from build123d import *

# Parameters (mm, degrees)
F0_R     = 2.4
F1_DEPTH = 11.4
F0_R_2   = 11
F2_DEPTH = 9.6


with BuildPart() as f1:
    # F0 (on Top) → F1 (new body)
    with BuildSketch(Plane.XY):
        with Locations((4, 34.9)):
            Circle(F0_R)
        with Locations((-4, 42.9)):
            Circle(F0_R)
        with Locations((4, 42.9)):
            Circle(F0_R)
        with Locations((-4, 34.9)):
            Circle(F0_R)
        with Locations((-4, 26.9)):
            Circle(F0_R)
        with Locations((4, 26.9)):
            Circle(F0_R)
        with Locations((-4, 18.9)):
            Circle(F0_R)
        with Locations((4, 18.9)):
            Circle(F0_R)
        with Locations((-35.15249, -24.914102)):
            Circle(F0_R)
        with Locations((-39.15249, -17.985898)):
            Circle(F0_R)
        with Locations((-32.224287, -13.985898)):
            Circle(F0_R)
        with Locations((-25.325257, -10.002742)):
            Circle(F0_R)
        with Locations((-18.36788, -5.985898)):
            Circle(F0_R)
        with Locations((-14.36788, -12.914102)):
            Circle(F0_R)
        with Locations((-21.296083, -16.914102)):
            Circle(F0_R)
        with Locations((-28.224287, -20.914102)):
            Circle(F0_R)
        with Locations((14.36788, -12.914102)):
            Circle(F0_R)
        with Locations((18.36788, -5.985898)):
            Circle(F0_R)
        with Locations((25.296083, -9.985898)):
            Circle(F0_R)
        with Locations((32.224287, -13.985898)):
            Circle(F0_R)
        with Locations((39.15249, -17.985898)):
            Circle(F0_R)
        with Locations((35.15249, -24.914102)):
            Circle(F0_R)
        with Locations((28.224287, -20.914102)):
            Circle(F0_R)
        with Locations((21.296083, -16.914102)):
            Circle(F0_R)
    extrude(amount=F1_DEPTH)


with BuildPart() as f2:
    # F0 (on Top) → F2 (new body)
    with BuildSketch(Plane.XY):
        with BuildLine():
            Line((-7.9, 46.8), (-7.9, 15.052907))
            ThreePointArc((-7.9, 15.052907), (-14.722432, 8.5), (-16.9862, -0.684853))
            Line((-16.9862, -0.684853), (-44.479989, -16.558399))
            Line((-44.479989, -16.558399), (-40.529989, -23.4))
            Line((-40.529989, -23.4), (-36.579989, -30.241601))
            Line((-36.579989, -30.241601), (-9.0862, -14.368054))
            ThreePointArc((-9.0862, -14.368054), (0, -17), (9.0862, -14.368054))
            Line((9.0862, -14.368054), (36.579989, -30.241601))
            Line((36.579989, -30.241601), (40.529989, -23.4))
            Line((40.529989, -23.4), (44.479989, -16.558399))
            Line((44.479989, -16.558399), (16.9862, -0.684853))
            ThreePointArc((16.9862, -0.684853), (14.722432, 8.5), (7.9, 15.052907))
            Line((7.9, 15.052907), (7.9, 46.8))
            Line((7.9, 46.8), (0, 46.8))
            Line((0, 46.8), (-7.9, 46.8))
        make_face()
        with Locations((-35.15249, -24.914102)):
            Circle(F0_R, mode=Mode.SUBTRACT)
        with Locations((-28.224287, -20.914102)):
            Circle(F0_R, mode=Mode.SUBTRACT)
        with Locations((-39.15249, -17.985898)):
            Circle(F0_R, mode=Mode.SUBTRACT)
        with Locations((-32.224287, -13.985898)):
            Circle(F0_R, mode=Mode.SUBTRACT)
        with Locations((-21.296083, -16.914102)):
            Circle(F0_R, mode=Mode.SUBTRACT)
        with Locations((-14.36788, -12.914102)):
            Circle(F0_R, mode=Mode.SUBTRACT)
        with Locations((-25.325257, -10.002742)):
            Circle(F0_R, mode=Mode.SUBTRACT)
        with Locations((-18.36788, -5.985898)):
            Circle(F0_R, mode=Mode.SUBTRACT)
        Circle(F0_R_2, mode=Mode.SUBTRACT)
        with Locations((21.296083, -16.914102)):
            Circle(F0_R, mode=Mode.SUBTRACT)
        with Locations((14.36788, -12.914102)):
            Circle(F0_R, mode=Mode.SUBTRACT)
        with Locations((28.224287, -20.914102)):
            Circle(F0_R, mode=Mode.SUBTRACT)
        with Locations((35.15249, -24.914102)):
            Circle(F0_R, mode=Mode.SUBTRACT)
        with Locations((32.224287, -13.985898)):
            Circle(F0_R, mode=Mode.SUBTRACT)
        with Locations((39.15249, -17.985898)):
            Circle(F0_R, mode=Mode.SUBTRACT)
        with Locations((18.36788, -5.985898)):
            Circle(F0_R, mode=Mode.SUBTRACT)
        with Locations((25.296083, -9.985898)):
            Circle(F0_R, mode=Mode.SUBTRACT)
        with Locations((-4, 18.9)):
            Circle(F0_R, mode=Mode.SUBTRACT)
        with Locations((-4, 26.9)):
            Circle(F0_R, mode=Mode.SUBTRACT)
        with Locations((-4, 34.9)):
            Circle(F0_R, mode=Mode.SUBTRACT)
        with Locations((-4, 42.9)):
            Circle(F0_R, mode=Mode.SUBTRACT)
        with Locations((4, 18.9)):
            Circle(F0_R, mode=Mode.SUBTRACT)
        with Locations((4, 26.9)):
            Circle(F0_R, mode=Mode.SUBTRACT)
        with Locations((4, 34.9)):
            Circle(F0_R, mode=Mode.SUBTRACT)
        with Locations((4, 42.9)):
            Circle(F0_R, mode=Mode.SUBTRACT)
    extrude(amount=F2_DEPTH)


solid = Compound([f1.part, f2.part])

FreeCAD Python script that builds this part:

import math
import FreeCAD as App
import Part
import Sketcher
Q = App.Units.Quantity

doc = App.newDocument("Part")
body = doc.addObject("PartDesign::Body", "Body")
body.AllowCompound = True

# Sketch on XY plane
sketch1 = body.newObject("Sketcher::SketchObject", "Sketch")
sketch1.AttachmentSupport = (doc.getObject("XY_Plane"), [""])
sketch1.MapMode = "FlatFace"
sketch1.addGeometry(Part.Circle(App.Vector(4, 34.9, 0), App.Vector(0, 0, 1), 2.4), False)
sketch1.addGeometry(Part.Circle(App.Vector(-4, 42.9, 0), App.Vector(0, 0, 1), 2.4), False)
sketch1.addGeometry(Part.Circle(App.Vector(4, 42.9, 0), App.Vector(0, 0, 1), 2.4), False)
sketch1.addGeometry(Part.Circle(App.Vector(-4, 34.9, 0), App.Vector(0, 0, 1), 2.4), False)
sketch1.addGeometry(Part.Circle(App.Vector(-4, 26.9, 0), App.Vector(0, 0, 1), 2.4), False)
sketch1.addGeometry(Part.Circle(App.Vector(4, 26.9, 0), App.Vector(0, 0, 1), 2.4), False)
sketch1.addGeometry(Part.Circle(App.Vector(-4, 18.9, 0), App.Vector(0, 0, 1), 2.4), False)
sketch1.addGeometry(Part.Circle(App.Vector(4, 18.9, 0), App.Vector(0, 0, 1), 2.4), False)
sketch1.addGeometry(Part.Circle(App.Vector(-35.2, -24.9, 0), App.Vector(0, 0, 1), 2.4), False)
sketch1.addGeometry(Part.Circle(App.Vector(-39.2, -18, 0), App.Vector(0, 0, 1), 2.4), False)
sketch1.addGeometry(Part.Circle(App.Vector(-32.2, -14, 0), App.Vector(0, 0, 1), 2.4), False)
sketch1.addGeometry(Part.Circle(App.Vector(-25.3, -10, 0), App.Vector(0, 0, 1), 2.4), False)
sketch1.addGeometry(Part.Circle(App.Vector(-18.4, -6, 0), App.Vector(0, 0, 1), 2.4), False)
sketch1.addGeometry(Part.Circle(App.Vector(-14.4, -12.9, 0), App.Vector(0, 0, 1), 2.4), False)
sketch1.addGeometry(Part.Circle(App.Vector(-21.3, -16.9, 0), App.Vector(0, 0, 1), 2.4), False)
sketch1.addGeometry(Part.Circle(App.Vector(-28.2, -20.9, 0), App.Vector(0, 0, 1), 2.4), False)
sketch1.addGeometry(Part.Circle(App.Vector(14.4, -12.9, 0), App.Vector(0, 0, 1), 2.4), False)
sketch1.addGeometry(Part.Circle(App.Vector(18.4, -6, 0), App.Vector(0, 0, 1), 2.4), False)
sketch1.addGeometry(Part.Circle(App.Vector(25.3, -10, 0), App.Vector(0, 0, 1), 2.4), False)
sketch1.addGeometry(Part.Circle(App.Vector(32.2, -14, 0), App.Vector(0, 0, 1), 2.4), False)
sketch1.addGeometry(Part.Circle(App.Vector(39.2, -18, 0), App.Vector(0, 0, 1), 2.4), False)
sketch1.addGeometry(Part.Circle(App.Vector(35.2, -24.9, 0), App.Vector(0, 0, 1), 2.4), False)
sketch1.addGeometry(Part.Circle(App.Vector(28.2, -20.9, 0), App.Vector(0, 0, 1), 2.4), False)
sketch1.addGeometry(Part.Circle(App.Vector(21.3, -16.9, 0), App.Vector(0, 0, 1), 2.4), False)
sketch1.addConstraint(Sketcher.Constraint("Equal", 0, 1))
sketch1.addConstraint(Sketcher.Constraint("Equal", 1, 2))
sketch1.addConstraint(Sketcher.Constraint("Equal", 2, 3))
sketch1.addConstraint(Sketcher.Constraint("Equal", 3, 4))
sketch1.addConstraint(Sketcher.Constraint("Equal", 4, 5))
sketch1.addConstraint(Sketcher.Constraint("Equal", 5, 6))
sketch1.addConstraint(Sketcher.Constraint("Equal", 6, 7))
sketch1.addConstraint(Sketcher.Constraint("Equal", 7, 8))
sketch1.addConstraint(Sketcher.Constraint("Equal", 8, 9))
sketch1.addConstraint(Sketcher.Constraint("Equal", 9, 10))
sketch1.addConstraint(Sketcher.Constraint("Equal", 10, 11))
sketch1.addConstraint(Sketcher.Constraint("Equal", 11, 12))
sketch1.addConstraint(Sketcher.Constraint("Equal", 12, 13))
sketch1.addConstraint(Sketcher.Constraint("Equal", 13, 14))
sketch1.addConstraint(Sketcher.Constraint("Equal", 14, 15))
sketch1.addConstraint(Sketcher.Constraint("Equal", 15, 16))
sketch1.addConstraint(Sketcher.Constraint("Equal", 16, 17))
sketch1.addConstraint(Sketcher.Constraint("Equal", 17, 18))
sketch1.addConstraint(Sketcher.Constraint("Equal", 18, 19))
sketch1.addConstraint(Sketcher.Constraint("Equal", 19, 20))
sketch1.addConstraint(Sketcher.Constraint("Equal", 20, 21))
sketch1.addConstraint(Sketcher.Constraint("Equal", 21, 22))
sketch1.addConstraint(Sketcher.Constraint("Equal", 22, 23))
sketch1.addConstraint(Sketcher.Constraint("Symmetric", 1, 3, 2, 3, -2))
sketch1.addConstraint(Sketcher.Constraint("Symmetric", 0, 3, 3, 3, -2))
sketch1.addConstraint(Sketcher.Constraint("Symmetric", 4, 3, 5, 3, -2))
sketch1.addConstraint(Sketcher.Constraint("Symmetric", 6, 3, 7, 3, -2))
sketch1.addConstraint(Sketcher.Constraint("Symmetric", 13, 3, 16, 3, -2))
sketch1.addConstraint(Sketcher.Constraint("Symmetric", 12, 3, 17, 3, -2))
sketch1.addConstraint(Sketcher.Constraint("Symmetric", 10, 3, 19, 3, -2))
sketch1.addConstraint(Sketcher.Constraint("Symmetric", 9, 3, 20, 3, -2))
sketch1.addConstraint(Sketcher.Constraint("Symmetric", 8, 3, 21, 3, -2))
sketch1.addConstraint(Sketcher.Constraint("Symmetric", 15, 3, 22, 3, -2))
sketch1.addConstraint(Sketcher.Constraint("Symmetric", 14, 3, 23, 3, -2))
sketch1.addConstraint(Sketcher.Constraint("Vertical", 0, 3, 2, 3))
sketch1.addConstraint(Sketcher.Constraint("Vertical", 3, 3, 4, 3))
sketch1.addConstraint(Sketcher.Constraint("Vertical", 4, 3, 6, 3))
sketch1.addConstraint(Sketcher.Constraint("Diameter", 0, Q("4.8 mm")))
sketch1.addConstraint(Sketcher.Constraint("DistanceX", -1, 1, 0, 3, Q("4 mm")))
sketch1.addConstraint(Sketcher.Constraint("DistanceY", 0, 3, 1, 3, Q("8 mm")))
sketch1.addConstraint(Sketcher.Constraint("DistanceY", 4, 3, 3, 3, Q("8 mm")))
sketch1.addConstraint(Sketcher.Constraint("DistanceY", 6, 3, 4, 3, Q("8 mm")))
sketch1.addConstraint(Sketcher.Constraint("DistanceX", 9, 3, 8, 3, Q("4 mm")))
sketch1.addConstraint(Sketcher.Constraint("DistanceY", 9, 3, 10, 3, Q("4 mm")))
sketch1.addConstraint(Sketcher.Constraint("DistanceY", 10, 3, 12, 3, Q("8 mm")))
sketch1.addConstraint(Sketcher.Constraint("DistanceX", 12, 3, 13, 3, Q("4 mm")))
sketch1.addConstraint(Sketcher.Constraint("DistanceY", 8, 3, 13, 3, Q("12 mm")))
sketch1.addConstraint(Sketcher.Constraint("DistanceY", 14, 3, 13, 3, Q("4 mm")))
sketch1.addConstraint(Sketcher.Constraint("DistanceY", 8, 3, 15, 3, Q("4 mm")))
sketch1.addConstraint(Sketcher.Constraint("DistanceX", 10, 3, 15, 3, Q("4 mm")))
sketch1.addConstraint(Sketcher.Constraint("DistanceY", 18, 3, 17, 3, Q("4 mm")))
sketch1.addConstraint(Sketcher.Constraint("DistanceX", 23, 3, 18, 3, Q("4 mm")))
sketch1.addConstraint(Sketcher.Constraint("DistanceY", -1, 1, 0, 3, Q("34.9 mm")))
sketch1.addConstraint(Sketcher.Constraint("DistanceY", 8, 3, -1, 1, Q("24.914102 mm")))
sketch1.addConstraint(Sketcher.Constraint("DistanceX", 8, 3, -1, 1, Q("35.15249 mm")))
sketch1.addConstraint(Sketcher.Constraint("DistanceX", 12, 3, -1, 1, Q("18.36788 mm")))
sketch1.addConstraint(Sketcher.Constraint("DistanceX", 10, 3, 11, 3, Q("6.89903 mm")))
sketch1.addConstraint(Sketcher.Constraint("DistanceY", 8, 3, 11, 3, Q("14.91136 mm")))
sketch1.addConstraint(Sketcher.Constraint("DistanceY", 9, 3, -1, 1, Q("17.985898 mm")))
sketch1.addConstraint(Sketcher.Constraint("DistanceX", 10, 3, -1, 1, Q("32.224287 mm")))
sketch1.addConstraint(Sketcher.Constraint("DistanceX", 14, 3, -1, 1, Q("21.296083 mm")))
pad1 = body.newObject("PartDesign::Pad", "Pad")
pad1.Profile = sketch1
pad1.Length = 11.4
body2 = doc.addObject("PartDesign::Body", "Body001")

# Sketch on XY plane
sketch2 = body2.newObject("Sketcher::SketchObject", "Sketch001")
sketch2.AttachmentSupport = (doc.getObject("XY_Plane001"), [""])
sketch2.MapMode = "FlatFace"
sketch2.addGeometry(Part.LineSegment(App.Vector(-7.9, 46.8, 0), App.Vector(-7.9, 15.1, 0)), False)
sketch2.addGeometry(Part.ArcOfCircle(Part.Circle(App.Vector(0, 0, 0), App.Vector(0, 0, 1), 17), math.radians(118), math.radians(182)), False)
sketch2.addGeometry(Part.LineSegment(App.Vector(-17, -0.7, 0), App.Vector(-44.5, -16.6, 0)), False)
sketch2.addGeometry(Part.LineSegment(App.Vector(-44.5, -16.6, 0), App.Vector(-36.6, -30.2, 0)), False)
sketch2.addGeometry(Part.LineSegment(App.Vector(-36.6, -30.2, 0), App.Vector(-9.1, -14.4, 0)), False)
sketch2.addGeometry(Part.ArcOfCircle(Part.Circle(App.Vector(0, 0, 0), App.Vector(0, 0, 1), 17), math.radians(-122), math.radians(-58)), False)
sketch2.addGeometry(Part.LineSegment(App.Vector(9.1, -14.4, 0), App.Vector(36.6, -30.2, 0)), False)
sketch2.addGeometry(Part.LineSegment(App.Vector(36.6, -30.2, 0), App.Vector(44.5, -16.6, 0)), False)
sketch2.addGeometry(Part.LineSegment(App.Vector(44.5, -16.6, 0), App.Vector(17, -0.7, 0)), False)
sketch2.addGeometry(Part.ArcOfCircle(Part.Circle(App.Vector(0, 0, 0), App.Vector(0, 0, 1), 17), math.radians(-2), math.radians(62)), False)
sketch2.addGeometry(Part.LineSegment(App.Vector(7.9, 15.1, 0), App.Vector(7.9, 46.8, 0)), False)
sketch2.addGeometry(Part.LineSegment(App.Vector(7.9, 46.8, 0), App.Vector(-7.9, 46.8, 0)), False)
sketch2.addGeometry(Part.Circle(App.Vector(-35.2, -24.9, 0), App.Vector(0, 0, 1), 2.4), False)
sketch2.addGeometry(Part.Circle(App.Vector(-28.2, -20.9, 0), App.Vector(0, 0, 1), 2.4), False)
sketch2.addGeometry(Part.Circle(App.Vector(-39.2, -18, 0), App.Vector(0, 0, 1), 2.4), False)
sketch2.addGeometry(Part.Circle(App.Vector(-32.2, -14, 0), App.Vector(0, 0, 1), 2.4), False)
sketch2.addGeometry(Part.Circle(App.Vector(-21.3, -16.9, 0), App.Vector(0, 0, 1), 2.4), False)
sketch2.addGeometry(Part.Circle(App.Vector(-25.3, -10, 0), App.Vector(0, 0, 1), 2.4), False)
sketch2.addGeometry(Part.Circle(App.Vector(-14.4, -12.9, 0), App.Vector(0, 0, 1), 2.4), False)
sketch2.addGeometry(Part.Circle(App.Vector(-18.4, -6, 0), App.Vector(0, 0, 1), 2.4), False)
sketch2.addGeometry(Part.Circle(App.Vector(14.4, -12.9, 0), App.Vector(0, 0, 1), 2.4), False)
sketch2.addGeometry(Part.Circle(App.Vector(28.2, -20.9, 0), App.Vector(0, 0, 1), 2.4), False)
sketch2.addGeometry(Part.Circle(App.Vector(35.2, -24.9, 0), App.Vector(0, 0, 1), 2.4), False)
sketch2.addGeometry(Part.Circle(App.Vector(21.3, -16.9, 0), App.Vector(0, 0, 1), 2.4), False)
sketch2.addGeometry(Part.Circle(App.Vector(25.3, -10, 0), App.Vector(0, 0, 1), 2.4), False)
sketch2.addGeometry(Part.Circle(App.Vector(32.2, -14, 0), App.Vector(0, 0, 1), 2.4), False)
sketch2.addGeometry(Part.Circle(App.Vector(39.2, -18, 0), App.Vector(0, 0, 1), 2.4), False)
sketch2.addGeometry(Part.Circle(App.Vector(18.4, -6, 0), App.Vector(0, 0, 1), 2.4), False)
sketch2.addGeometry(Part.Circle(App.Vector(0, 0, 0), App.Vector(0, 0, 1), 11), False)
sketch2.addGeometry(Part.Circle(App.Vector(-4, 18.9, 0), App.Vector(0, 0, 1), 2.4), False)
sketch2.addGeometry(Part.Circle(App.Vector(-4, 26.9, 0), App.Vector(0, 0, 1), 2.4), False)
sketch2.addGeometry(Part.Circle(App.Vector(-4, 34.9, 0), App.Vector(0, 0, 1), 2.4), False)
sketch2.addGeometry(Part.Circle(App.Vector(-4, 42.9, 0), App.Vector(0, 0, 1), 2.4), False)
sketch2.addGeometry(Part.Circle(App.Vector(4, 18.9, 0), App.Vector(0, 0, 1), 2.4), False)
sketch2.addGeometry(Part.Circle(App.Vector(4, 26.9, 0), App.Vector(0, 0, 1), 2.4), False)
sketch2.addGeometry(Part.Circle(App.Vector(4, 34.9, 0), App.Vector(0, 0, 1), 2.4), False)
sketch2.addGeometry(Part.Circle(App.Vector(4, 42.9, 0), App.Vector(0, 0, 1), 2.4), False)
sketch2.addConstraint(Sketcher.Constraint("Coincident", 0, 2, 1, 1))
sketch2.addConstraint(Sketcher.Constraint("Coincident", 1, 2, 2, 1))
sketch2.addConstraint(Sketcher.Constraint("Coincident", 2, 2, 3, 1))
sketch2.addConstraint(Sketcher.Constraint("Coincident", 3, 2, 4, 1))
sketch2.addConstraint(Sketcher.Constraint("Coincident", 4, 2, 5, 1))
sketch2.addConstraint(Sketcher.Constraint("Coincident", 5, 2, 6, 1))
sketch2.addConstraint(Sketcher.Constraint("Coincident", 6, 2, 7, 1))
sketch2.addConstraint(Sketcher.Constraint("Coincident", 7, 2, 8, 1))
sketch2.addConstraint(Sketcher.Constraint("Coincident", 8, 2, 9, 1))
sketch2.addConstraint(Sketcher.Constraint("Coincident", 9, 2, 10, 1))
sketch2.addConstraint(Sketcher.Constraint("Coincident", 10, 2, 11, 1))
sketch2.addConstraint(Sketcher.Constraint("Coincident", 11, 2, 0, 1))
sketch2.addConstraint(Sketcher.Constraint("Vertical", 0))
sketch2.addConstraint(Sketcher.Constraint("Vertical", 10))
sketch2.addConstraint(Sketcher.Constraint("Horizontal", 11))
sketch2.addConstraint(Sketcher.Constraint("Coincident", 1, 3, -1, 1))
sketch2.addConstraint(Sketcher.Constraint("Coincident", 5, 3, -1, 1))
sketch2.addConstraint(Sketcher.Constraint("Coincident", 9, 3, -1, 1))
sketch2.addConstraint(Sketcher.Constraint("Coincident", 28, 3, -1, 1))
sketch2.addConstraint(Sketcher.Constraint("Equal", 1, 5))
sketch2.addConstraint(Sketcher.Constraint("Equal", 5, 9))
sketch2.addConstraint(Sketcher.Constraint("Equal", 12, 13))
sketch2.addConstraint(Sketcher.Constraint("Equal", 13, 14))
sketch2.addConstraint(Sketcher.Constraint("Equal", 14, 15))
sketch2.addConstraint(Sketcher.Constraint("Equal", 15, 16))
sketch2.addConstraint(Sketcher.Constraint("Equal", 16, 17))
sketch2.addConstraint(Sketcher.Constraint("Equal", 17, 18))
sketch2.addConstraint(Sketcher.Constraint("Equal", 18, 19))
sketch2.addConstraint(Sketcher.Constraint("Equal", 19, 20))
sketch2.addConstraint(Sketcher.Constraint("Equal", 20, 21))
sketch2.addConstraint(Sketcher.Constraint("Equal", 21, 22))
sketch2.addConstraint(Sketcher.Constraint("Equal", 22, 23))
sketch2.addConstraint(Sketcher.Constraint("Equal", 23, 24))
sketch2.addConstraint(Sketcher.Constraint("Equal", 24, 25))
sketch2.addConstraint(Sketcher.Constraint("Equal", 25, 26))
sketch2.addConstraint(Sketcher.Constraint("Equal", 26, 27))
sketch2.addConstraint(Sketcher.Constraint("Equal", 27, 29))
sketch2.addConstraint(Sketcher.Constraint("Equal", 29, 30))
sketch2.addConstraint(Sketcher.Constraint("Equal", 30, 31))
sketch2.addConstraint(Sketcher.Constraint("Equal", 31, 32))
sketch2.addConstraint(Sketcher.Constraint("Equal", 32, 33))
sketch2.addConstraint(Sketcher.Constraint("Equal", 33, 34))
sketch2.addConstraint(Sketcher.Constraint("Equal", 34, 35))
sketch2.addConstraint(Sketcher.Constraint("Equal", 35, 36))
sketch2.addConstraint(Sketcher.Constraint("Symmetric", 18, 3, 20, 3, -2))
sketch2.addConstraint(Sketcher.Constraint("Symmetric", 13, 3, 21, 3, -2))
sketch2.addConstraint(Sketcher.Constraint("Symmetric", 12, 3, 22, 3, -2))
sketch2.addConstraint(Sketcher.Constraint("Symmetric", 16, 3, 23, 3, -2))
sketch2.addConstraint(Sketcher.Constraint("Symmetric", 15, 3, 25, 3, -2))
sketch2.addConstraint(Sketcher.Constraint("Symmetric", 14, 3, 26, 3, -2))
sketch2.addConstraint(Sketcher.Constraint("Symmetric", 19, 3, 27, 3, -2))
sketch2.addConstraint(Sketcher.Constraint("Symmetric", 29, 3, 33, 3, -2))
sketch2.addConstraint(Sketcher.Constraint("Symmetric", 30, 3, 34, 3, -2))
sketch2.addConstraint(Sketcher.Constraint("Symmetric", 31, 3, 35, 3, -2))
sketch2.addConstraint(Sketcher.Constraint("Symmetric", 32, 3, 36, 3, -2))
sketch2.addConstraint(Sketcher.Constraint("Symmetric", 3, 2, 6, 2, -2))
sketch2.addConstraint(Sketcher.Constraint("Symmetric", 2, 2, 7, 2, -2))
sketch2.addConstraint(Sketcher.Constraint("Perpendicular", 2, 3))
sketch2.addConstraint(Sketcher.Constraint("Perpendicular", 3, 4))
sketch2.addConstraint(Sketcher.Constraint("Perpendicular", 6, 7))
sketch2.addConstraint(Sketcher.Constraint("Perpendicular", 7, 8))
sketch2.addConstraint(Sketcher.Constraint("Horizontal", 0, 2, 9, 2))
sketch2.addConstraint(Sketcher.Constraint("Vertical", 29, 3, 30, 3))
sketch2.addConstraint(Sketcher.Constraint("Vertical", 30, 3, 31, 3))
sketch2.addConstraint(Sketcher.Constraint("Vertical", 31, 3, 32, 3))
sketch2.addConstraint(Sketcher.Constraint("Equal", 2, 4))
sketch2.addConstraint(Sketcher.Constraint("Diameter", 28, Q("22 mm")))
sketch2.addConstraint(Sketcher.Constraint("Radius", 1, Q("17.000002 mm")))
sketch2.addConstraint(Sketcher.Constraint("Diameter", 12, Q("4.8 mm")))
sketch2.addConstraint(Sketcher.Constraint("Angle", 2, Q("-150.000001 deg")))
sketch2.addConstraint(Sketcher.Constraint("DistanceX", 11, 2, 11, 1, Q("15.8 mm")))
sketch2.addConstraint(Sketcher.Constraint("DistanceX", 29, 3, -1, 1, Q("4 mm")))
sketch2.addConstraint(Sketcher.Constraint("DistanceY", 12, 3, 13, 3, Q("4 mm")))
sketch2.addConstraint(Sketcher.Constraint("DistanceX", 14, 3, 12, 3, Q("4 mm")))
sketch2.addConstraint(Sketcher.Constraint("DistanceY", 14, 3, 15, 3, Q("4 mm")))
sketch2.addConstraint(Sketcher.Constraint("DistanceX", 15, 3, 13, 3, Q("4 mm")))
sketch2.addConstraint(Sketcher.Constraint("DistanceY", 13, 3, 16, 3, Q("4 mm")))
sketch2.addConstraint(Sketcher.Constraint("DistanceY", 16, 3, 18, 3, Q("4 mm")))
sketch2.addConstraint(Sketcher.Constraint("DistanceX", 19, 3, 18, 3, Q("4 mm")))
sketch2.addConstraint(Sketcher.Constraint("DistanceY", 15, 3, 19, 3, Q("8 mm")))
sketch2.addConstraint(Sketcher.Constraint("DistanceX", 23, 3, 24, 3, Q("4 mm")))
sketch2.addConstraint(Sketcher.Constraint("DistanceY", 25, 3, 24, 3, Q("4 mm")))
sketch2.addConstraint(Sketcher.Constraint("DistanceY", 29, 3, 30, 3, Q("8 mm")))
sketch2.addConstraint(Sketcher.Constraint("DistanceY", 30, 3, 31, 3, Q("8 mm")))
sketch2.addConstraint(Sketcher.Constraint("DistanceY", 31, 3, 32, 3, Q("8 mm")))
sketch2.addConstraint(Sketcher.Constraint("Distance", 3, Q("15.800001 mm")))
sketch2.addConstraint(Sketcher.Constraint("DistanceY", -1, 1, 29, 3, Q("18.9 mm")))
sketch2.addConstraint(Sketcher.Constraint("DistanceY", -1, 1, 10, 2, Q("46.8 mm")))
sketch2.addConstraint(Sketcher.Constraint("DistanceY", 12, 3, -1, 1, Q("24.914102 mm")))
sketch2.addConstraint(Sketcher.Constraint("DistanceY", 2, 2, -1, 1, Q("16.558399 mm")))
sketch2.addConstraint(Sketcher.Constraint("DistanceY", 14, 3, 5, 3, Q("17.985899 mm")))
sketch2.addConstraint(Sketcher.Constraint("DistanceX", 2, 2, 14, 3, Q("5.327499 mm")))
sketch2.addConstraint(Sketcher.Constraint("DistanceX", 3, 2, 13, 3, Q("8.355702 mm")))
sketch2.addConstraint(Sketcher.Constraint("DistanceX", 18, 3, -1, 1, Q("14.36788 mm")))
sketch2.addConstraint(Sketcher.Constraint("DistanceX", 16, 3, 9, 3, Q("21.296082 mm")))
sketch2.addConstraint(Sketcher.Constraint("DistanceX", 15, 3, 17, 3, Q("6.89903 mm")))
sketch2.addConstraint(Sketcher.Constraint("DistanceY", 16, 3, 17, 3, Q("6.91136 mm")))
pad2 = body2.newObject("PartDesign::Pad", "Pad001")
pad2.Profile = sketch2
pad2.Length = 9.6

doc.recompute()
